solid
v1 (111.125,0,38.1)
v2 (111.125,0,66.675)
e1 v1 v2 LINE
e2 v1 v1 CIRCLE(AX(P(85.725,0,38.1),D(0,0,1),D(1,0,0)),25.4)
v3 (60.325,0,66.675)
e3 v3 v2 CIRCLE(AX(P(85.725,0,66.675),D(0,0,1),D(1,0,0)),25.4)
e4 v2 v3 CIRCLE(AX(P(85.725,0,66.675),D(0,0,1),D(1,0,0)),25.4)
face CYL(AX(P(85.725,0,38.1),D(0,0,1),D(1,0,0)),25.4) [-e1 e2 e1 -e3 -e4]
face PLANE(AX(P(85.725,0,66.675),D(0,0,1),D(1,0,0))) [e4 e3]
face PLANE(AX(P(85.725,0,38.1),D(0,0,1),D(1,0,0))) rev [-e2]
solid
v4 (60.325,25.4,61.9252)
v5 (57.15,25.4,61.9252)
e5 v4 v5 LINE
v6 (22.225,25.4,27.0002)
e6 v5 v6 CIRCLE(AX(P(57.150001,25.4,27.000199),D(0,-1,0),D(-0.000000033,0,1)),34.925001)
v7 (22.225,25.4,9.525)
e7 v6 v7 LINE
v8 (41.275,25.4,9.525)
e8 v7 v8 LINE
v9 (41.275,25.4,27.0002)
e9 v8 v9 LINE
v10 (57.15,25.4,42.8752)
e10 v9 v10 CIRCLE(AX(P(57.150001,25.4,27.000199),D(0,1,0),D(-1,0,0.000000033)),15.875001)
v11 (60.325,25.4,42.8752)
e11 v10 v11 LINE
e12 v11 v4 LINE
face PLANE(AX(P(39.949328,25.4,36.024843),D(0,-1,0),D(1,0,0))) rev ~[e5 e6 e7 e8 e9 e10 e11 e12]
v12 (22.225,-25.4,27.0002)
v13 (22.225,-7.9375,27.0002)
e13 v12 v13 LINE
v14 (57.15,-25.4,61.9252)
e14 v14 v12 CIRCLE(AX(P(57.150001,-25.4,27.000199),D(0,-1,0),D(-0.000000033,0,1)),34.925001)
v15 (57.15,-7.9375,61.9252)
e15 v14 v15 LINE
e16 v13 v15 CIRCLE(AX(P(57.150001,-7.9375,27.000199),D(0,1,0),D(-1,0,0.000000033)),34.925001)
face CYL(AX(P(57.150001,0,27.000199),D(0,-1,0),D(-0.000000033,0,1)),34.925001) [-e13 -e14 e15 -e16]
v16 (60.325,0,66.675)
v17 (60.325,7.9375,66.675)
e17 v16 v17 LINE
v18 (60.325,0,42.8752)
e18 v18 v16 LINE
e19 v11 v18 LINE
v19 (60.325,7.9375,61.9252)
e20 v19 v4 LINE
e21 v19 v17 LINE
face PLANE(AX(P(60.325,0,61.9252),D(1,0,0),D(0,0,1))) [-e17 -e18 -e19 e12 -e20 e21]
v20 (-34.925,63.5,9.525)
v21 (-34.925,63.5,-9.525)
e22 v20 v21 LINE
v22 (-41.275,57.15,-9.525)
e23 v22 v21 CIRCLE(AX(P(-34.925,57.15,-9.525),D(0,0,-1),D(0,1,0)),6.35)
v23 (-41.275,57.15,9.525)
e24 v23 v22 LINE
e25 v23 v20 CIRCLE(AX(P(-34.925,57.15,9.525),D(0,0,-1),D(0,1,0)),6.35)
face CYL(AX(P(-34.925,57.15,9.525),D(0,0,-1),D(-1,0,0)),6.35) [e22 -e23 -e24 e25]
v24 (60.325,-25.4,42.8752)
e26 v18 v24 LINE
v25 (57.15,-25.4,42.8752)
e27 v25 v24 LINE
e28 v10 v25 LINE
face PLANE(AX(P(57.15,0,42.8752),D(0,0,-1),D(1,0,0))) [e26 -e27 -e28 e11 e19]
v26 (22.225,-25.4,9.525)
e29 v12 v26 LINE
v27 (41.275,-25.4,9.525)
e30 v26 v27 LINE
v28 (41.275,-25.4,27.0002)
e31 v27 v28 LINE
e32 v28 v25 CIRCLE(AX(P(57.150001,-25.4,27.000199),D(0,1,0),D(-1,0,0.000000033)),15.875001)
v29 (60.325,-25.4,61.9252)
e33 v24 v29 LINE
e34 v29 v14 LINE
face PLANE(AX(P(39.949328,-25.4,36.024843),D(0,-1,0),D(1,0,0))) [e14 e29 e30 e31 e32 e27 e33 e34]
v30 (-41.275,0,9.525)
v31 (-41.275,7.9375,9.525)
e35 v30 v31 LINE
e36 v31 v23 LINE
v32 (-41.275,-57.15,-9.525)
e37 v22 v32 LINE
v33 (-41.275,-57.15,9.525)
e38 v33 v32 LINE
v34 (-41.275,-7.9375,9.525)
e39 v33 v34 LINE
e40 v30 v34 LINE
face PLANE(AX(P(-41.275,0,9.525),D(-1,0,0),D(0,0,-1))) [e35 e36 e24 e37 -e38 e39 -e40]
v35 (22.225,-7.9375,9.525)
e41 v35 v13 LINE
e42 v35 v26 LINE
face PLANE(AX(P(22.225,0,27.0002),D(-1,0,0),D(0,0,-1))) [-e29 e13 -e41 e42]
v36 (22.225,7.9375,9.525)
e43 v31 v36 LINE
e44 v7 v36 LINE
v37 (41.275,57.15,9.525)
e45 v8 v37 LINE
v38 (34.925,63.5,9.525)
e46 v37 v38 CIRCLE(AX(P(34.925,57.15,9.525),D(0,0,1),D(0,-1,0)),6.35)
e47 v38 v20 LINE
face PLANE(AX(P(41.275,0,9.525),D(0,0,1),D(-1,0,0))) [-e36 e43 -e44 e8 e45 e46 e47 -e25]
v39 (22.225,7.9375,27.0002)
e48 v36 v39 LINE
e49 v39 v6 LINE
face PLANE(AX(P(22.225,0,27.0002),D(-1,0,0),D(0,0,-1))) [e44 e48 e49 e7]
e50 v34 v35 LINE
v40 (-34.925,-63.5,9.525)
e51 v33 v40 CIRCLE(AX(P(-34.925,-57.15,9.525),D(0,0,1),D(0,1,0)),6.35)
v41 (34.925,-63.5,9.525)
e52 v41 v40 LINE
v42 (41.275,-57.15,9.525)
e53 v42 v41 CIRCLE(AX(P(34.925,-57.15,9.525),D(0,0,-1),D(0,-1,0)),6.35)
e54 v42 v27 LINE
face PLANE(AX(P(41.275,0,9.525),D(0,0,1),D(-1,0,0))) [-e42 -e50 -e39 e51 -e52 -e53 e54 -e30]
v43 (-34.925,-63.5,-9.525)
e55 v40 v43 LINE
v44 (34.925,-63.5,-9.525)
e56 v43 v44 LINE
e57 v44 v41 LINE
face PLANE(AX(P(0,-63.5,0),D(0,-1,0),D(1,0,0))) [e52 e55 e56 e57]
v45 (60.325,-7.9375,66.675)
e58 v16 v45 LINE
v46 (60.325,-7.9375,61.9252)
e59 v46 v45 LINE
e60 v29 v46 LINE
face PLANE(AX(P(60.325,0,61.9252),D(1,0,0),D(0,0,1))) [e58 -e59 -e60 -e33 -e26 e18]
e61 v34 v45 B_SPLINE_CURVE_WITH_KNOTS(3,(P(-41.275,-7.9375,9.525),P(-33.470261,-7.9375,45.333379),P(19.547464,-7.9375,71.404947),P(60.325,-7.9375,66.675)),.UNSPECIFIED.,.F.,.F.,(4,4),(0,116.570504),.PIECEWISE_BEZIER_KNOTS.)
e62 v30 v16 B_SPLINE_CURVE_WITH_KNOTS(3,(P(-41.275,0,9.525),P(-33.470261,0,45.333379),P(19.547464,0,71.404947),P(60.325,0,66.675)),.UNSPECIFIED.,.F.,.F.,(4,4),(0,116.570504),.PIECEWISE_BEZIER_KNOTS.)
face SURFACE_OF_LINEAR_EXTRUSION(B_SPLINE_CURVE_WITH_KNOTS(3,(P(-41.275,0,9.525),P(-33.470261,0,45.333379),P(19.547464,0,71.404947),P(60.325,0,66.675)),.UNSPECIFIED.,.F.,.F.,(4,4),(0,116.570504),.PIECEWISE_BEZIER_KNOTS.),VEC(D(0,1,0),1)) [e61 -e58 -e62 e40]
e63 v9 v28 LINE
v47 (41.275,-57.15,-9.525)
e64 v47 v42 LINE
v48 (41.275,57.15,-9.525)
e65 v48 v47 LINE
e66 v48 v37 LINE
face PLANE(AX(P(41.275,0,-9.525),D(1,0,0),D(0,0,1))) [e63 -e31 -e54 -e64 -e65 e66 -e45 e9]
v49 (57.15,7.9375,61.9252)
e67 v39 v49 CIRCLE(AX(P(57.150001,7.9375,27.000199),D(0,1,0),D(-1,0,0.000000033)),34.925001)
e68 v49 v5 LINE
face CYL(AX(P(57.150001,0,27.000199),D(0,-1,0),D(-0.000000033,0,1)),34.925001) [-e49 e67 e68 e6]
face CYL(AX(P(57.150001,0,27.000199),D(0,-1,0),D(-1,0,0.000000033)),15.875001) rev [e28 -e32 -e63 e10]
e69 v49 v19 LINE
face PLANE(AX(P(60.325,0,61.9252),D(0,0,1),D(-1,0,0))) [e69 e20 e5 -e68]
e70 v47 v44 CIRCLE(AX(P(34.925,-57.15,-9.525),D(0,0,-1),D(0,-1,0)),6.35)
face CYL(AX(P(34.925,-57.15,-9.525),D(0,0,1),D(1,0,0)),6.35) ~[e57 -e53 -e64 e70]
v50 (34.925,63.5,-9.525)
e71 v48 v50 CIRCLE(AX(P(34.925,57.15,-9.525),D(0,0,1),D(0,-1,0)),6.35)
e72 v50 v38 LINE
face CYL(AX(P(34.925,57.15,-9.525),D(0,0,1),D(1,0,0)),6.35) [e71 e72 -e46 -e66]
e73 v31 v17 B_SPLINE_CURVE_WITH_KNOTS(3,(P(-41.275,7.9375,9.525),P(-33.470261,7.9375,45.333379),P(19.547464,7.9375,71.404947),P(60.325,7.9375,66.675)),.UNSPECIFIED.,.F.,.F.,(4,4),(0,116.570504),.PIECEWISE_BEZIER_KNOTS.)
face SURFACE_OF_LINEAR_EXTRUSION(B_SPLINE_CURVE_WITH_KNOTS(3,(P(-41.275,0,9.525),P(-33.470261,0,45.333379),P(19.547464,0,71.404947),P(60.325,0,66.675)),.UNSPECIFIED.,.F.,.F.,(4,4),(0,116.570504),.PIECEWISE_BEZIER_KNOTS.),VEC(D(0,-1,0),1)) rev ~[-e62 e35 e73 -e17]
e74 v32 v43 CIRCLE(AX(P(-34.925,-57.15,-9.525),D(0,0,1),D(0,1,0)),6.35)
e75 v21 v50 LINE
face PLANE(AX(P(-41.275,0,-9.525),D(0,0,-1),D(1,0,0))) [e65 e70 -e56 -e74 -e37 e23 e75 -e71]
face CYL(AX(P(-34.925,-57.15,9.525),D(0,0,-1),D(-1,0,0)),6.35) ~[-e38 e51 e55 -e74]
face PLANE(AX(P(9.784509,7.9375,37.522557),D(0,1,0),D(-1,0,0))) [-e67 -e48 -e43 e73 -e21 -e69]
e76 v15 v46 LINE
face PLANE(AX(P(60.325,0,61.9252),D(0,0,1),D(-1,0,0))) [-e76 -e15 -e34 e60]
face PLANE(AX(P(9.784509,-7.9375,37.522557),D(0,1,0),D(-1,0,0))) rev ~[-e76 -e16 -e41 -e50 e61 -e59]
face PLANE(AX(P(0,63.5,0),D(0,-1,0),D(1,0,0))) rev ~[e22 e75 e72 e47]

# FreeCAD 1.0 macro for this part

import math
import FreeCAD as App
import Part
import Sketcher

V = App.Vector
Q = App.Units.Quantity


def edges_at(feature, points):
    """Names of the edges that pass closest to the given points."""
    edges = feature.Shape.Edges
    near = lambda p: min(range(len(edges)), key=lambda i: edges[i].distToShape(Part.Vertex(*p))[0])
    return sorted({f"Edge{near(p) + 1}" for p in points})

doc = App.newDocument("Part")
params = doc.addObject("Spreadsheet::Sheet", "Params")
for row, (alias, value) in enumerate([
    ("sketch1_width", "3.25 in"),
    ("sketch1_height", "0.75 in"),
    ("pad1_length", "5 in"),
    ("sketch2_radius", "0.625 in"),
    ("sketch2_radius2", "1.375 in"),
    ("sketch2_width", "0.125 in"),
    ("sketch2_height", "0.688 in"),
    ("pad2_length", "2 in"),
    ("sketch3_width", "2.5 in"),
    ("sketch3_radius", "1.375 in"),
    ("sketch3_height", "0.688 in"),
    ("pad3_length", "0.625 in"),
    ("sketch4_width", "1 in"),
    ("sketch4_height", "1.125 in"),
    ("revolution_angle", "360 deg"),
    ("fillet_radius", "0.25 in"),
], start=1):
    params.set(f"A{row}", alias)
    params.set(f"B{row}", "=" + value)
    params.setAlias(f"B{row}", alias)

body = doc.addObject("PartDesign::Body", "Body")
body.AllowCompound = True

sketch1 = doc.addObject("Sketcher::SketchObject", "Sketch")
body.addObject(sketch1)
sketch1.AttachmentSupport = (doc.XZ_Plane, [""])
sketch1.MapMode = "FlatFace"
sketch1.addGeometry([
    Part.LineSegment(V(-41, 10, 0), V(-41, -10, 0)),
    Part.LineSegment(V(-41, -10, 0), V(41, -10, 0)),
    Part.LineSegment(V(41, -10, 0), V(41, 10, 0)),
    Part.LineSegment(V(41, 10, 0), V(-41, 10, 0)),
], False)
sketch1.addConstraint([
    Sketcher.Constraint("Coincident", 0, 2, 1, 1),
    Sketcher.Constraint("Coincident", 1, 2, 2, 1),
    Sketcher.Constraint("Coincident", 2, 2, 3, 1),
    Sketcher.Constraint("Coincident", 3, 2, 0, 1),
    Sketcher.Constraint("Vertical", 0),
    Sketcher.Constraint("Horizontal", 1),
    Sketcher.Constraint("Vertical", 2),
    Sketcher.Constraint("Horizontal", 3),
    Sketcher.Constraint("Symmetric", 0, 2, 2, 2, -1, 1),
    Sketcher.Constraint("DistanceX", 1, 1, 1, 2, Q("3.25 in")),
    Sketcher.Constraint("DistanceY", 0, 2, 0, 1, Q("0.75 in")),
])
sketch1.setExpression("Constraints[9]", "Params.sketch1_width")
sketch1.setExpression("Constraints[10]", "Params.sketch1_height")
pad1 = doc.addObject("PartDesign::Pad", "Pad")
body.addObject(pad1)
pad1.Profile = sketch1
pad1.setExpression("Length", "Params.pad1_length")
pad1.Midplane = True

sketch2 = doc.addObject("Sketcher::SketchObject", "Sketch001")
body.addObject(sketch2)
sketch2.AttachmentSupport = (doc.XZ_Plane, [""])
sketch2.MapMode = "FlatFace"
sketch2.addGeometry([
    Part.LineSegment(V(22.2, 27, 0), V(22.2, 9.5, 0)),
    Part.LineSegment(V(22.2, 9.5, 0), V(41.3, 9.5, 0)),
    Part.LineSegment(V(41.3, 9.5, 0), V(41.3, 27, 0)),
    Part.ArcOfCircle(Part.Circle(V(57.2, 27, 0), V(0, 0, 1), 15.9), math.radians(90), math.radians(180)),
    Part.LineSegment(V(57.1, 42.9, 0), V(60.3, 42.9, 0)),
    Part.LineSegment(V(60.3, 42.9, 0), V(60.3, 61.9, 0)),
    Part.LineSegment(V(60.3, 61.9, 0), V(57.1, 61.9, 0)),
    Part.ArcOfCircle(Part.Circle(V(57.2, 27, 0), V(0, 0, 1), 34.9), math.radians(90), math.radians(180)),
], False)
sketch2.addConstraint([
    Sketcher.Constraint("Coincident", 0, 2, 1, 1),
    Sketcher.Constraint("Coincident", 1, 2, 2, 1),
    Sketcher.Constraint("Tangent", 2, 2, 3, 2),
    Sketcher.Constraint("Tangent", 3, 1, 4, 1),
    Sketcher.Constraint("Coincident", 4, 2, 5, 1),
    Sketcher.Constraint("Coincident", 5, 2, 6, 1),
    Sketcher.Constraint("Tangent", 6, 2, 7, 1),
    Sketcher.Constraint("Tangent", 7, 2, 0, 1),
    Sketcher.Constraint("Vertical", 0),
    Sketcher.Constraint("Horizontal", 1),
    Sketcher.Constraint("Vertical", 2),
    Sketcher.Constraint("Horizontal", 4),
    Sketcher.Constraint("Vertical", 5),
    Sketcher.Constraint("Horizontal", 6),
    Sketcher.Constraint("Coincident", 7, 3, 3, 3),
    Sketcher.Constraint("Radius", 3, Q("0.625 in")),
    Sketcher.Constraint("Radius", 7, Q("1.375 in")),
    Sketcher.Constraint("DistanceX", 4, 1, 4, 2, Q("0.125 in")),
    Sketcher.Constraint("DistanceY", 0, 2, 0, 1, Q("0.688 in")),
    Sketcher.Constraint("DistanceX", -1, 1, 3, 3, Q("2.25 in")),
    Sketcher.Constraint("DistanceY", -1, 1, 3, 3, Q("1.063 in")),
])
sketch2.setExpression("Constraints[15]", "Params.sketch2_radius")
sketch2.setExpression("Constraints[16]", "Params.sketch2_radius2")
sketch2.setExpression("Constraints[17]", "Params.sketch2_width")
sketch2.setExpression("Constraints[18]", "Params.sketch2_height")
pad2 = doc.addObject("PartDesign::Pad", "Pad001")
body.addObject(pad2)
pad2.Profile = sketch2
pad2.setExpression("Length", "Params.pad2_length")
pad2.Midplane = True

sketch3 = doc.addObject("Sketcher::SketchObject", "Sketch002")
body.addObject(sketch3)
sketch3.AttachmentSupport = (doc.XZ_Plane, [""])
sketch3.MapMode = "FlatFace"
sketch3.addGeometry([
    Part.BSplineCurve([V(-41.275, 9.525, 0), V(-33.470261, 45.333379, 0), V(19.547464, 71.404947, 0), V(60.325, 66.675, 0)], [4, 4], [0, 116.570504], False, 3, [1, 1, 1, 1], False),
    Part.LineSegment(V(-41.275, 9.525, 0), V(22.225, 9.525, 0)),
    Part.LineSegment(V(22.225, 9.525, 0), V(22.225, 27.0002, 0)),
    Part.ArcOfCircle(Part.Circle(V(57.150001, 27.000199, 0), V(0, 0, 1), 34.925001), math.radians(90.000002), math.radians(179.999998)),
    Part.LineSegment(V(57.15, 61.9252, 0), V(60.325, 61.9252, 0)),
    Part.LineSegment(V(60.325, 61.9252, 0), V(60.325, 66.675, 0)),
], False)
sketch3.addConstraint([
    Sketcher.Constraint("Block", 0),
    Sketcher.Constraint("Coincident", 0, 1, 1, 1),
    Sketcher.Constraint("Coincident", 1, 2, 2, 1),
    Sketcher.Constraint("Tangent", 2, 2, 3, 2),
    Sketcher.Constraint("Tangent", 3, 1, 4, 1),
    Sketcher.Constraint("Coincident", 4, 2, 5, 1),
    Sketcher.Constraint("Coincident", 5, 2, 0, 2),
    Sketcher.Constraint("Horizontal", 1),
    Sketcher.Constraint("Vertical", 2),
    Sketcher.Constraint("Horizontal", 4),
    Sketcher.Constraint("Vertical", 5),
    Sketcher.Constraint("DistanceX", 1, 1, 1, 2, Q("2.5 in")),
    Sketcher.Constraint("Radius", 3, Q("1.375 in")),
    Sketcher.Constraint("DistanceY", 2, 1, 2, 2, Q("0.688 in")),
])
sketch3.setExpression("Constraints[11]", "Params.sketch3_width")
sketch3.setExpression("Constraints[12]", "Params.sketch3_radius")
sketch3.setExpression("Constraints[13]", "Params.sketch3_height")
pad3 = doc.addObject("PartDesign::Pad", "Pad002")
body.addObject(pad3)
pad3.Profile = sketch3
pad3.setExpression("Length", "Params.pad3_length")
pad3.Midplane = True

sketch4 = doc.addObject("Sketcher::SketchObject", "Sketch003")
body.addObject(sketch4)
sketch4.AttachmentSupport = (doc.XZ_Plane, [""])
sketch4.MapMode = "FlatFace"
sketch4.addGeometry([
    Part.LineSegment(V(111, 67, 0), V(86, 67, 0)),
    Part.LineSegment(V(86, 67, 0), V(86, 38, 0)),
    Part.LineSegment(V(86, 38, 0), V(111, 38, 0)),
    Part.LineSegment(V(111, 38, 0), V(111, 67, 0)),
], False)
sketch4.addGeometry(Part.LineSegment(V(86, 38, 0), V(86, 67, 0)), True)
sketch4.addConstraint([
    Sketcher.Constraint("Coincident", 0, 2, 1, 1),
    Sketcher.Constraint("Coincident", 1, 2, 2, 1),
    Sketcher.Constraint("Coincident", 2, 2, 3, 1),
    Sketcher.Constraint("Coincident", 3, 2, 0, 1),
    Sketcher.Constraint("Horizontal", 0),
    Sketcher.Constraint("Vertical", 1),
    Sketcher.Constraint("Horizontal", 2),
    Sketcher.Constraint("Vertical", 3),
    Sketcher.Constraint("Vertical", 4),
    Sketcher.Constraint("Coincident", 4, 1, 1, 2),
    Sketcher.Constraint("Horizontal", 3, 2, 4, 2),
    Sketcher.Constraint("DistanceX", 0, 2, 0, 1, Q("1 in")),
    Sketcher.Constraint("DistanceY", -1, 1, 1, 2, Q("1.5 in")),
    Sketcher.Constraint("DistanceY", 1, 2, 1, 1, Q("1.125 in")),
    Sketcher.Constraint("DistanceX", -1, 1, 0, 2, Q("3.375 in")),
])
sketch4.setExpression("Constraints[11]", "Params.sketch4_width")
sketch4.setExpression("Constraints[13]", "Params.sketch4_height")
revolution = doc.addObject("PartDesign::Revolution", "Revolution")
body.addObject(revolution)
revolution.Profile = sketch4
revolution.ReferenceAxis = (sketch4, ["Axis0"])
revolution.setExpression("Angle", "Params.revolution_angle")
doc.recompute()

fillet = doc.addObject("PartDesign::Fillet", "Fillet")
body.addObject(fillet)
fillet.Base = (revolution, edges_at(revolution, [
    (-41.275, -63.5, 0),
    (-41.275, 63.5, 0),
    (41.275, -63.5, 0),
    (41.275, 63.5, 0),
]))
fillet.setExpression("Radius", "Params.fillet_radius")

doc.recompute()
